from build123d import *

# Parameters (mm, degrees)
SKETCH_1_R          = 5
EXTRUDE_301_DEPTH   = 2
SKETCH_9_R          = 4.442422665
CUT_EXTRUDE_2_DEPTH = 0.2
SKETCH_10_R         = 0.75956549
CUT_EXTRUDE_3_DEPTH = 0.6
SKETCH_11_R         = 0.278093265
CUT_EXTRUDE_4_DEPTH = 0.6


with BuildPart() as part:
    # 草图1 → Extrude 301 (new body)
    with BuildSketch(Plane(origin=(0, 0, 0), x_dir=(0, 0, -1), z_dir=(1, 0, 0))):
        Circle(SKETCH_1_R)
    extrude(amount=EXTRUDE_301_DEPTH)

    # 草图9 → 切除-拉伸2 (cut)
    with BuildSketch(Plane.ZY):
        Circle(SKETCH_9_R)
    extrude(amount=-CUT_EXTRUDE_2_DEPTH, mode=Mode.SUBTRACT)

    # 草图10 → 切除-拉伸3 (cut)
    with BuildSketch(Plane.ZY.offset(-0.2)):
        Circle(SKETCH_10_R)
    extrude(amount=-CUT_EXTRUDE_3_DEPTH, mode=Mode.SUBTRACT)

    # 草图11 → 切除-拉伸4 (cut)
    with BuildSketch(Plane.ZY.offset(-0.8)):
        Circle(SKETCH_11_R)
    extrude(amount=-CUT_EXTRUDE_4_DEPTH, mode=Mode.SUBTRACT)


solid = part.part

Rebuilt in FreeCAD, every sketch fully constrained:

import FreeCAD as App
import Part
import Sketcher
Q = App.Units.Quantity

doc = App.newDocument("Part")
body = doc.addObject("PartDesign::Body", "Body")

# Sketch on YZ plane
sketch1 = doc.addObject("Sketcher::SketchObject", "Sketch")
body.addObject(sketch1)
sketch1.AttachmentSupport = (doc.YZ_Plane, [""])
sketch1.MapMode = "FlatFace"
sketch1.addGeometry(Part.Circle(App.Vector(0, 0, 0), App.Vector(0, 0, 1), 5), False)
sketch1.addConstraint(Sketcher.Constraint("Coincident", 0, 3, -1, 1))
sketch1.addConstraint(Sketcher.Constraint("Diameter", 0, Q("10 mm")))
pad1 = doc.addObject("PartDesign::Pad", "Pad")
body.addObject(pad1)
pad1.Profile = sketch1
pad1.Length = 2

# Sketch on YZ plane
sketch2 = doc.addObject("Sketcher::SketchObject", "Sketch001")
body.addObject(sketch2)
sketch2.AttachmentSupport = (doc.YZ_Plane, [""])
sketch2.MapMode = "FlatFace"
sketch2.addGeometry(Part.Circle(App.Vector(0, 0, 0), App.Vector(0, 0, 1), 4.4), False)
sketch2.addConstraint(Sketcher.Constraint("Coincident", 0, 3, -1, 1))
sketch2.addConstraint(Sketcher.Constraint("Diameter", 0, Q("8.884845 mm")))
pocket1 = doc.addObject("PartDesign::Pocket", "Pocket")
body.addObject(pocket1)
pocket1.Profile = sketch2
pocket1.Length = 0.2
pocket1.Reversed = True

# Sketch on YZ plane
sketch3 = doc.addObject("Sketcher::SketchObject", "Sketch002")
body.addObject(sketch3)
sketch3.AttachmentSupport = (doc.YZ_Plane, [""])
sketch3.MapMode = "FlatFace"
sketch3.AttachmentOffset = App.Placement(App.Vector(0, 0, 0.2), App.Rotation())
sketch3.addGeometry(Part.Circle(App.Vector(0, 0, 0), App.Vector(0, 0, 1), 0.8), False)
sketch3.addConstraint(Sketcher.Constraint("Coincident", 0, 3, -1, 1))
sketch3.addConstraint(Sketcher.Constraint("Diameter", 0, Q("1.519131 mm")))
pocket2 = doc.addObject("PartDesign::Pocket", "Pocket001")
body.addObject(pocket2)
pocket2.Profile = sketch3
pocket2.Length = 0.6
pocket2.Reversed = True

# Sketch on YZ plane
sketch4 = doc.addObject("Sketcher::SketchObject", "Sketch003")
body.addObject(sketch4)
sketch4.AttachmentSupport = (doc.YZ_Plane, [""])
sketch4.MapMode = "FlatFace"
sketch4.AttachmentOffset = App.Placement(App.Vector(0, 0, 0.8), App.Rotation())
sketch4.addGeometry(Part.Circle(App.Vector(0, 0, 0), App.Vector(0, 0, 1), 0.28), False)
sketch4.addConstraint(Sketcher.Constraint("Coincident", 0, 3, -1, 1))
sketch4.addConstraint(Sketcher.Constraint("Diameter", 0, Q("0.556187 mm")))
pocket3 = doc.addObject("PartDesign::Pocket", "Pocket002")
body.addObject(pocket3)
pocket3.Profile = sketch4
pocket3.Length = 0.6
pocket3.Reversed = True

doc.recompute()
